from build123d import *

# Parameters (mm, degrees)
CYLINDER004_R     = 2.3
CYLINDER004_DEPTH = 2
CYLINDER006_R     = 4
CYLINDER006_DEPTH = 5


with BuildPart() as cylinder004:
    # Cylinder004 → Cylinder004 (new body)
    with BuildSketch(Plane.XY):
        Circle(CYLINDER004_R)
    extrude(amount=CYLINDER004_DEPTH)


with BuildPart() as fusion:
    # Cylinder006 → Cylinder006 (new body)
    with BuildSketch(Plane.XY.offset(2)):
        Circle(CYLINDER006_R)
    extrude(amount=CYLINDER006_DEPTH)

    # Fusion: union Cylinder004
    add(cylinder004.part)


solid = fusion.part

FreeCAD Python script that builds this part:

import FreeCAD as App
import Part
import Sketcher
Q = App.Units.Quantity

doc = App.newDocument("Part")
body = doc.addObject("PartDesign::Body", "Body")

# Sketch on XY plane
sketch1 = body.newObject("Sketcher::SketchObject", "Sketch")
sketch1.AttachmentSupport = (doc.getObject("XY_Plane"), [""])
sketch1.MapMode = "FlatFace"
sketch1.addGeometry(Part.Circle(App.Vector(0, 0, 0), App.Vector(0, 0, 1), 2.3), False)
sketch1.addConstraint([
    Sketcher.Constraint("Coincident", 0, 3, -1, 1),
    Sketcher.Constraint("Diameter", 0, Q("4.6 mm")),
])
pad1 = body.newObject("PartDesign::Pad", "Pad")
pad1.Profile = sketch1
pad1.Length = 2
body2 = doc.addObject("PartDesign::Body", "Body001")

# Sketch on XY plane
sketch2 = body2.newObject("Sketcher::SketchObject", "Sketch001")
sketch2.AttachmentSupport = (doc.getObject("XY_Plane001"), [""])
sketch2.MapMode = "FlatFace"
sketch2.AttachmentOffset = App.Placement(App.Vector(0, 0, 2), App.Rotation())
sketch2.addGeometry(Part.Circle(App.Vector(0, 0, 0), App.Vector(0, 0, 1), 4), False)
sketch2.addConstraint([
    Sketcher.Constraint("Coincident", 0, 3, -1, 1),
    Sketcher.Constraint("Diameter", 0, Q("8 mm")),
])
pad2 = body2.newObject("PartDesign::Pad", "Pad001")
pad2.Profile = sketch2
pad2.Length = 5
doc.recompute()

boolean = body2.newObject("PartDesign::Boolean", "Boolean")
boolean.Type = "Fuse"
boolean.addObjects([body])

doc.recompute()
